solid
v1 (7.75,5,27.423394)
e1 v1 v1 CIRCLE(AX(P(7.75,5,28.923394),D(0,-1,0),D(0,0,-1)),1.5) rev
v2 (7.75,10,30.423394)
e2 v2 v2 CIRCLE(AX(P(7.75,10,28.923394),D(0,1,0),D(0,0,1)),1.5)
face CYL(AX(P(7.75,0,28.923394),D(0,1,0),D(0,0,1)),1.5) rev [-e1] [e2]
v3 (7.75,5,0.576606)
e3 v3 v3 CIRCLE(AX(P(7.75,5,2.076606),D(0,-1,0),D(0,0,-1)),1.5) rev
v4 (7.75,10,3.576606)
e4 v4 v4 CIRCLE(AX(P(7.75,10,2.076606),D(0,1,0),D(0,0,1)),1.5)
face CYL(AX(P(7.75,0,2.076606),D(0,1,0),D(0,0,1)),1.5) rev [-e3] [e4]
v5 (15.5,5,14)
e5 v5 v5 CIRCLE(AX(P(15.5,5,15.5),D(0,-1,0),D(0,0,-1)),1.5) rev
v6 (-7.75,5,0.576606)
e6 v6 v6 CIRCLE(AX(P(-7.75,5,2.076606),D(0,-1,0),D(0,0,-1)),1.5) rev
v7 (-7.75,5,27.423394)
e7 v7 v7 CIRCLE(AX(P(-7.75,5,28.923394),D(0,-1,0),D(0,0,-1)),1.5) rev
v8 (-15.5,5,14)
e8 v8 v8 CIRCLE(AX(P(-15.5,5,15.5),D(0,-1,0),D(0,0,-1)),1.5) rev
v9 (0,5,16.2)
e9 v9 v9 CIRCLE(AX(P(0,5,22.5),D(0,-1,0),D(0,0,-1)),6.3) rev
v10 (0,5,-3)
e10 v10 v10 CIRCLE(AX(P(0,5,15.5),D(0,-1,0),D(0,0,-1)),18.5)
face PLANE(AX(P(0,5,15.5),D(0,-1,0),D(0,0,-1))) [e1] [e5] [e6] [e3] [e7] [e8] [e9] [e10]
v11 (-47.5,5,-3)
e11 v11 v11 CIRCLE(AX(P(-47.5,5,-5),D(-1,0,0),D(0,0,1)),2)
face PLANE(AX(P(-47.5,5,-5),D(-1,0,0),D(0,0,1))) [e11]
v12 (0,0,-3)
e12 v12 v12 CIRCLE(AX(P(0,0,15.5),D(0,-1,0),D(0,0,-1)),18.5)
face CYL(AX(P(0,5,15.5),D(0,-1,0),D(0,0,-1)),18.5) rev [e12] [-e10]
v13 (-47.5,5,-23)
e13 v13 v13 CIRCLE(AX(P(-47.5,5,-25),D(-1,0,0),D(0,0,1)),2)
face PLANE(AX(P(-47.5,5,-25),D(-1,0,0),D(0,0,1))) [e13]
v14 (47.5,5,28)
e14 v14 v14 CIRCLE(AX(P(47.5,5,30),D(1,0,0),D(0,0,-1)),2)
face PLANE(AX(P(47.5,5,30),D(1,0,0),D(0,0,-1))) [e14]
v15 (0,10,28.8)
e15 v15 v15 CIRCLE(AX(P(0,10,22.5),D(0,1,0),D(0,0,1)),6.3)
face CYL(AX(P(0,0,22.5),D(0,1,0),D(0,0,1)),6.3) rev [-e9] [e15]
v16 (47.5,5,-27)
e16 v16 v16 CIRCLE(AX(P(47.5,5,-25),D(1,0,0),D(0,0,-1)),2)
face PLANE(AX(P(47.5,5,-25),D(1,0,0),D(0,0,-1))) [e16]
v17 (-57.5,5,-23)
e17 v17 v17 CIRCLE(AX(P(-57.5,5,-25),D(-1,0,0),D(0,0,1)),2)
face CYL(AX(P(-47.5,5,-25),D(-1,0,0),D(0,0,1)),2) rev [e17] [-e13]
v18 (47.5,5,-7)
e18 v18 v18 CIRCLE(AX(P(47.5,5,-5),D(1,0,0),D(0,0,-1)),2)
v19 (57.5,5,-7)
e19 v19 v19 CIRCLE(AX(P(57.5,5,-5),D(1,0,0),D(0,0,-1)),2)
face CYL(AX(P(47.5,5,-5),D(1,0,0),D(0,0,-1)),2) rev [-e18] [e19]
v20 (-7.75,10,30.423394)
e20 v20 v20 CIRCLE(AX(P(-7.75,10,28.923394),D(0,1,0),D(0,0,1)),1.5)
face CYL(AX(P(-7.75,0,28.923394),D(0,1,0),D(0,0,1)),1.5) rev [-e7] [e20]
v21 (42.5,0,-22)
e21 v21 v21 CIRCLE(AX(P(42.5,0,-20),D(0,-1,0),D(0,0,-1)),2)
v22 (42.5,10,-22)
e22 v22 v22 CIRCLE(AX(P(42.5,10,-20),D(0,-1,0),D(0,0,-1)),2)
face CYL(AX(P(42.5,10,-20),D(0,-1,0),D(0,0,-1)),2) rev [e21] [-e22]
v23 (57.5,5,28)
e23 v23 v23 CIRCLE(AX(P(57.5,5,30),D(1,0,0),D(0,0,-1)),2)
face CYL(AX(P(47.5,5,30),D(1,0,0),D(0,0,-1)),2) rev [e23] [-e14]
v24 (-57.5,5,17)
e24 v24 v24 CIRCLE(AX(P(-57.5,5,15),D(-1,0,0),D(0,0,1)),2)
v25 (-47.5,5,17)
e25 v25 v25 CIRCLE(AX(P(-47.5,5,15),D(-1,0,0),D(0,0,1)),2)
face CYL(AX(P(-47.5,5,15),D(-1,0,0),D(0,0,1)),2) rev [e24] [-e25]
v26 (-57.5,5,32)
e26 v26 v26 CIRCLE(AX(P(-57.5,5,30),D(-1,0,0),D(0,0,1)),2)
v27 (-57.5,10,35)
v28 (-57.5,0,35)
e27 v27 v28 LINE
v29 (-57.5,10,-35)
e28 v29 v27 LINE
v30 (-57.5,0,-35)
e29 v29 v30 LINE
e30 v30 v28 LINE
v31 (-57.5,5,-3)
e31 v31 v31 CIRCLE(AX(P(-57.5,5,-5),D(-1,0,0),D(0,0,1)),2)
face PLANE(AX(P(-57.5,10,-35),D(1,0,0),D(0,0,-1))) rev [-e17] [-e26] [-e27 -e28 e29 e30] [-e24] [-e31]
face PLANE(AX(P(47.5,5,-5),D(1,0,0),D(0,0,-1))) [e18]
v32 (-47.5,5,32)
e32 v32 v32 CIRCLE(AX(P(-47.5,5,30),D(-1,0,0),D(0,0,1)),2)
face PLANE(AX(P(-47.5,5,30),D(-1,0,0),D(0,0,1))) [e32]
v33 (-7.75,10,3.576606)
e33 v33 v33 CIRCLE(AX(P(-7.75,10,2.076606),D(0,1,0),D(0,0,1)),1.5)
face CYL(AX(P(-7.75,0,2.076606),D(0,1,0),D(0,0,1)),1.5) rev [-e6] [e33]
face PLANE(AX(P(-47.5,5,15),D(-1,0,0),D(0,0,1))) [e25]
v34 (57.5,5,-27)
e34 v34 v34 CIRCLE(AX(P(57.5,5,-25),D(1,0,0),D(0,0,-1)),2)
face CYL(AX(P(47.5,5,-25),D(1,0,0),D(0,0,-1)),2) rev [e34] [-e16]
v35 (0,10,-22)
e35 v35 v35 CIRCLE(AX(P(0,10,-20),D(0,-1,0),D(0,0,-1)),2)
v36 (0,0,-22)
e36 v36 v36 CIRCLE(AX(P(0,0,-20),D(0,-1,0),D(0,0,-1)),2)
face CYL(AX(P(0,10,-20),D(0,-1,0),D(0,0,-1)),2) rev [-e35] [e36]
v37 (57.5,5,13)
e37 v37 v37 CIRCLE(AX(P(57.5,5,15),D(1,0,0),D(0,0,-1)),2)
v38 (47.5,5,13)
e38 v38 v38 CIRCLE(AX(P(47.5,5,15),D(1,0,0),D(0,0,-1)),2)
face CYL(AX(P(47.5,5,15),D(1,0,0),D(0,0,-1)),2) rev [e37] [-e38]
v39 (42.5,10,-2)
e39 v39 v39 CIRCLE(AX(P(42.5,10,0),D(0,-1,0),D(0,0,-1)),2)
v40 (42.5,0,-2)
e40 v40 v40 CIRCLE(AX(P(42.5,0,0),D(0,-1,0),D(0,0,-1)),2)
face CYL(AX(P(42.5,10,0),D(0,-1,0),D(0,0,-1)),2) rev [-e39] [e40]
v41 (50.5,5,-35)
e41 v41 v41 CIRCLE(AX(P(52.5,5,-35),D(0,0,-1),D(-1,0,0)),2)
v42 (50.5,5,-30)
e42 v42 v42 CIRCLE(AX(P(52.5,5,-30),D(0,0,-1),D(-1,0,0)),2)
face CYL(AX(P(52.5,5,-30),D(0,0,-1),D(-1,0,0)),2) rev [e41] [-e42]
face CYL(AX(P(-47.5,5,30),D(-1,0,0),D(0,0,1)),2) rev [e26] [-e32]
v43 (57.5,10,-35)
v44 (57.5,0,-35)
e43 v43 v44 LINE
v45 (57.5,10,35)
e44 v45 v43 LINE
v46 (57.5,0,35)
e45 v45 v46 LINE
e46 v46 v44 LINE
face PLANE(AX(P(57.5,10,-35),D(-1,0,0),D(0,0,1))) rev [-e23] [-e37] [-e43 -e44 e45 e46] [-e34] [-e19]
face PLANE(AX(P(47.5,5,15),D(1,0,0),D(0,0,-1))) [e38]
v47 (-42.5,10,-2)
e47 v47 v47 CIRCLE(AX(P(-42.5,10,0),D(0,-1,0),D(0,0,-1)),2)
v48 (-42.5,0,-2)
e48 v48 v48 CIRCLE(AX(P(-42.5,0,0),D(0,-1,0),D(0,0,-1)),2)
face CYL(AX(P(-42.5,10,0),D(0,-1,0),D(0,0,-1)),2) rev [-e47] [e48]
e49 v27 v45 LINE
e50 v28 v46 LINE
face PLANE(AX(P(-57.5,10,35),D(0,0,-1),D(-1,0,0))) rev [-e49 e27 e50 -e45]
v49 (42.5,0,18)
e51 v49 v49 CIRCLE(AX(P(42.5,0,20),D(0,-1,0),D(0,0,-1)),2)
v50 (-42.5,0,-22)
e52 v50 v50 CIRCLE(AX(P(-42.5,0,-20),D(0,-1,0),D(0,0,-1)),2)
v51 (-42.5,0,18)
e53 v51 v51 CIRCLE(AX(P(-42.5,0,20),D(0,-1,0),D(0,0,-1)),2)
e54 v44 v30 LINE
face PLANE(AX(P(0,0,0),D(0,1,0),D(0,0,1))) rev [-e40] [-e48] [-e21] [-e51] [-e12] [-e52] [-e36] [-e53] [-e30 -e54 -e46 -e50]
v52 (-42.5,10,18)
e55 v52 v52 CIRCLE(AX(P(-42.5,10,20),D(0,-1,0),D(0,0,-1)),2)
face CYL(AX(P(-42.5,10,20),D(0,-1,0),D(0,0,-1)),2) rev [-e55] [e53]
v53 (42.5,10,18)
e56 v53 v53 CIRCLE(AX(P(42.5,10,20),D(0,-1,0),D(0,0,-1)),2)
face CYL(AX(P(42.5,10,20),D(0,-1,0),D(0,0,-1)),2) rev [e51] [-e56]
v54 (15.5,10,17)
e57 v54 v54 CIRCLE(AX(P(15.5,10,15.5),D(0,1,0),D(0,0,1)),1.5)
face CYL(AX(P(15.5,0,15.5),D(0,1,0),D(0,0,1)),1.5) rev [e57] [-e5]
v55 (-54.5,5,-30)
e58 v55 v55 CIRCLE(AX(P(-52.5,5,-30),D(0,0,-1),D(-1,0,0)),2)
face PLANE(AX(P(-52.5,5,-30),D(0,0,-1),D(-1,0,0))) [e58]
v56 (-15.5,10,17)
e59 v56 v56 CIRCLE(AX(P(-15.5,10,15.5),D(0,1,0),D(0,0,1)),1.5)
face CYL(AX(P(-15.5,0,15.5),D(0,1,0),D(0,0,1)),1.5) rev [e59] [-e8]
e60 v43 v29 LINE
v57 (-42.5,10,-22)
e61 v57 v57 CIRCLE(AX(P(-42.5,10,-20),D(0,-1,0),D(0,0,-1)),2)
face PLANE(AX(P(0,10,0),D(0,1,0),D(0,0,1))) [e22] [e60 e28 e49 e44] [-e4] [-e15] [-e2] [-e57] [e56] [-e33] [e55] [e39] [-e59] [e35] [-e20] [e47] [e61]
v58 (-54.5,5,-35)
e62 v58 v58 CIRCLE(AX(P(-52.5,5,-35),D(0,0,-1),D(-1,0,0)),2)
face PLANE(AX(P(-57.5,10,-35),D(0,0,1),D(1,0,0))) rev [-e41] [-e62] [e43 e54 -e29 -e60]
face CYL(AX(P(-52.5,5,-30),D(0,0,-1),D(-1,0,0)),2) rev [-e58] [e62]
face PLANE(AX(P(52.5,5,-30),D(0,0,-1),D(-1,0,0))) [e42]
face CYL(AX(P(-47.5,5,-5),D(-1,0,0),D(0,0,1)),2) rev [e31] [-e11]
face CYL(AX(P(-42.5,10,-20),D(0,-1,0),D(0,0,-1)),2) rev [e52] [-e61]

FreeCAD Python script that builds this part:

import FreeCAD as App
import Part
import Sketcher


def add_polygon(sketch, points):
    """Adds a closed chain of lines whose ends are joined by coincident constraints."""
    first, n = sketch.GeometryCount, len(points)
    for a, b in zip(points, points[1:] + points[:1]):
        sketch.addGeometry(Part.LineSegment(App.Vector(*a, 0), App.Vector(*b, 0)), False)
    for i in range(n):
        sketch.addConstraint(Sketcher.Constraint("Coincident", first + i, 2, first + (i + 1) % n, 1))

doc = App.newDocument("Part")
body = doc.addObject("PartDesign::Body", "Body")

# Sketch on XZ plane
sketch1 = body.newObject("Sketcher::SketchObject", "Sketch")
sketch1.AttachmentSupport = (doc.getObject("XZ_Plane"), [""])
sketch1.MapMode = "FlatFace"
add_polygon(sketch1, [(-57.5, -35), (-57.5, 35), (57.5, 35), (57.5, -35)])  # lines 0-3
sketch1.addConstraint(Sketcher.Constraint("Vertical", 0))
sketch1.addConstraint(Sketcher.Constraint("Horizontal", 1))
sketch1.addConstraint(Sketcher.Constraint("Vertical", 2))
sketch1.addConstraint(Sketcher.Constraint("Horizontal", 3))
sketch1.addConstraint(Sketcher.Constraint("Symmetric", 0, 2, 2, 2, -1, 1))
sketch1.addConstraint(Sketcher.Constraint("DistanceX", 1, 1, 1, 2, 115.0))
sketch1.addConstraint(Sketcher.Constraint("DistanceY", 0, 1, 0, 2, 70.0))
pad1 = body.newObject("PartDesign::Pad", "Pad")
pad1.Profile = sketch1
pad1.Length = 10
pad1.Reversed = True

# Sketch on XZ plane
sketch2 = body.newObject("Sketcher::SketchObject", "Sketch001")
sketch2.AttachmentSupport = (doc.getObject("XZ_Plane"), [""])
sketch2.MapMode = "FlatFace"
sketch2.AttachmentOffset = App.Placement(App.Vector(0, 0, -10), App.Rotation())
sketch2.addGeometry(Part.Circle(App.Vector(0, 22.5, 0), App.Vector(0, 0, 1), 6.3), False)
sketch2.addGeometry(Part.Circle(App.Vector(15.5, 15.5, 0), App.Vector(0, 0, 1), 1.5), False)
sketch2.addGeometry(Part.Circle(App.Vector(7.75, 28.923394, 0), App.Vector(0, 0, 1), 1.5), False)
sketch2.addGeometry(Part.Circle(App.Vector(-7.75, 28.923394, 0), App.Vector(0, 0, 1), 1.5), False)
sketch2.addGeometry(Part.Circle(App.Vector(-15.5, 15.5, 0), App.Vector(0, 0, 1), 1.5), False)
sketch2.addGeometry(Part.Circle(App.Vector(-7.75, 2.076606, 0), App.Vector(0, 0, 1), 1.5), False)
sketch2.addGeometry(Part.Circle(App.Vector(7.75, 2.076606, 0), App.Vector(0, 0, 1), 1.5), False)
sketch2.addConstraint(Sketcher.Constraint("Equal", 1, 2))
sketch2.addConstraint(Sketcher.Constraint("Equal", 2, 3))
sketch2.addConstraint(Sketcher.Constraint("Equal", 3, 4))
sketch2.addConstraint(Sketcher.Constraint("Equal", 4, 5))
sketch2.addConstraint(Sketcher.Constraint("Equal", 5, 6))
sketch2.addConstraint(Sketcher.Constraint("Symmetric", 2, 3, 3, 3, -2))
sketch2.addConstraint(Sketcher.Constraint("Symmetric", 1, 3, 4, 3, -2))
sketch2.addConstraint(Sketcher.Constraint("Symmetric", 5, 3, 6, 3, -2))
sketch2.addConstraint(Sketcher.Constraint("PointOnObject", 0, 3, -2))
sketch2.addConstraint(Sketcher.Constraint("Vertical", 3, 3, 5, 3))
sketch2.addConstraint(Sketcher.Constraint("Diameter", 1, 3.0))
sketch2.addConstraint(Sketcher.Constraint("Diameter", 0, 12.6))
sketch2.addConstraint(Sketcher.Constraint("DistanceY", 1, 3, 0, 3, 7.0))
sketch2.addConstraint(Sketcher.Constraint("DistanceX", 4, 3, 1, 3, 31.0))
sketch2.addConstraint(Sketcher.Constraint("DistanceY", -1, 1, 0, 3, 22.5))
sketch2.addConstraint(Sketcher.Constraint("DistanceX", 3, 3, 2, 3, 15.5))
sketch2.addConstraint(Sketcher.Constraint("DistanceY", -1, 1, 2, 3, 28.923394))
sketch2.addConstraint(Sketcher.Constraint("DistanceY", -1, 1, 5, 3, 2.076606))
pocket1 = body.newObject("PartDesign::Pocket", "Pocket")
pocket1.Profile = sketch2
pocket1.Length = 10
pocket1.Reversed = True

# Sketch on XZ plane
sketch3 = body.newObject("Sketcher::SketchObject", "Sketch002")
sketch3.AttachmentSupport = (doc.getObject("XZ_Plane"), [""])
sketch3.MapMode = "FlatFace"
sketch3.addGeometry(Part.Circle(App.Vector(0, 15.5, 0), App.Vector(0, 0, 1), 18.5), False)
sketch3.addConstraint(Sketcher.Constraint("PointOnObject", 0, 3, -2))
sketch3.addConstraint(Sketcher.Constraint("Diameter", 0, 37.0))
sketch3.addConstraint(Sketcher.Constraint("DistanceY", -1, 1, 0, 3, 15.5))
pocket2 = body.newObject("PartDesign::Pocket", "Pocket001")
pocket2.Profile = sketch3
pocket2.Length = 5

# Sketch on YZ plane
sketch4 = body.newObject("Sketcher::SketchObject", "Sketch003")
sketch4.AttachmentSupport = (doc.getObject("YZ_Plane"), [""])
sketch4.MapMode = "FlatFace"
sketch4.AttachmentOffset = App.Placement(App.Vector(0, 0, -57.5), App.Rotation())
sketch4.addGeometry(Part.Circle(App.Vector(5, 30, 0), App.Vector(0, 0, 1), 2), False)
sketch4.addGeometry(Part.Circle(App.Vector(5, 15, 0), App.Vector(0, 0, 1), 2), False)
sketch4.addGeometry(Part.Circle(App.Vector(5, -5, 0), App.Vector(0, 0, 1), 2), False)
sketch4.addGeometry(Part.Circle(App.Vector(5, -25, 0), App.Vector(0, 0, 1), 2), False)
sketch4.addConstraint(Sketcher.Constraint("Equal", 0, 1))
sketch4.addConstraint(Sketcher.Constraint("Equal", 1, 2))
sketch4.addConstraint(Sketcher.Constraint("Equal", 2, 3))
sketch4.addConstraint(Sketcher.Constraint("Vertical", 0, 3, 1, 3))
sketch4.addConstraint(Sketcher.Constraint("Vertical", 1, 3, 2, 3))
sketch4.addConstraint(Sketcher.Constraint("Vertical", 2, 3, 3, 3))
sketch4.addConstraint(Sketcher.Constraint("Diameter", 0, 4.0))
sketch4.addConstraint(Sketcher.Constraint("DistanceX", -1, 1, 0, 3, 5.0))
sketch4.addConstraint(Sketcher.Constraint("DistanceY", -1, 1, 0, 3, 30.0))
sketch4.addConstraint(Sketcher.Constraint("DistanceY", -1, 1, 1, 3, 15.0))
sketch4.addConstraint(Sketcher.Constraint("DistanceY", 2, 3, -1, 1, 5.0))
sketch4.addConstraint(Sketcher.Constraint("DistanceY", 3, 3, -1, 1, 25.0))
pocket3 = body.newObject("PartDesign::Pocket", "Pocket002")
pocket3.Profile = sketch4
pocket3.Length = 10
pocket3.Reversed = True

# Sketch on YZ plane
sketch5 = body.newObject("Sketcher::SketchObject", "Sketch004")
sketch5.AttachmentSupport = (doc.getObject("YZ_Plane"), [""])
sketch5.MapMode = "FlatFace"
sketch5.AttachmentOffset = App.Placement(App.Vector(0, 0, 47.5), App.Rotation())
sketch5.addGeometry(Part.Circle(App.Vector(5, 30, 0), App.Vector(0, 0, 1), 2), False)
sketch5.addGeometry(Part.Circle(App.Vector(5, 15, 0), App.Vector(0, 0, 1), 2), False)
sketch5.addGeometry(Part.Circle(App.Vector(5, -5, 0), App.Vector(0, 0, 1), 2), False)
sketch5.addGeometry(Part.Circle(App.Vector(5, -25, 0), App.Vector(0, 0, 1), 2), False)
sketch5.addConstraint(Sketcher.Constraint("Equal", 0, 1))
sketch5.addConstraint(Sketcher.Constraint("Equal", 1, 2))
sketch5.addConstraint(Sketcher.Constraint("Equal", 2, 3))
sketch5.addConstraint(Sketcher.Constraint("Vertical", 0, 3, 1, 3))
sketch5.addConstraint(Sketcher.Constraint("Vertical", 1, 3, 2, 3))
sketch5.addConstraint(Sketcher.Constraint("Vertical", 2, 3, 3, 3))
sketch5.addConstraint(Sketcher.Constraint("Diameter", 0, 4.0))
sketch5.addConstraint(Sketcher.Constraint("DistanceX", -1, 1, 0, 3, 5.0))
sketch5.addConstraint(Sketcher.Constraint("DistanceY", -1, 1, 0, 3, 30.0))
sketch5.addConstraint(Sketcher.Constraint("DistanceY", -1, 1, 1, 3, 15.0))
sketch5.addConstraint(Sketcher.Constraint("DistanceY", 2, 3, -1, 1, 5.0))
sketch5.addConstraint(Sketcher.Constraint("DistanceY", 3, 3, -1, 1, 25.0))
pocket4 = body.newObject("PartDesign::Pocket", "Pocket003")
pocket4.Profile = sketch5
pocket4.Length = 10
pocket4.Reversed = True

# Sketch on XY plane
sketch6 = body.newObject("Sketcher::SketchObject", "Sketch005")
sketch6.AttachmentSupport = (doc.getObject("XY_Plane"), [""])
sketch6.MapMode = "FlatFace"
sketch6.AttachmentOffset = App.Placement(App.Vector(0, 0, -35), App.Rotation())
sketch6.addGeometry(Part.Circle(App.Vector(52.5, 5, 0), App.Vector(0, 0, 1), 2), False)
sketch6.addGeometry(Part.Circle(App.Vector(-52.5, 5, 0), App.Vector(0, 0, 1), 2), False)
sketch6.addConstraint(Sketcher.Constraint("Equal", 0, 1))
sketch6.addConstraint(Sketcher.Constraint("Symmetric", 0, 3, 1, 3, -2))
sketch6.addConstraint(Sketcher.Constraint("Diameter", 0, 4.0))
sketch6.addConstraint(Sketcher.Constraint("DistanceY", -1, 1, 0, 3, 5.0))
sketch6.addConstraint(Sketcher.Constraint("DistanceX", 1, 3, 0, 3, 105.0))
pocket5 = body.newObject("PartDesign::Pocket", "Pocket004")
pocket5.Profile = sketch6
pocket5.Length = 5
pocket5.Reversed = True

# Sketch on XZ plane
sketch7 = body.newObject("Sketcher::SketchObject", "Sketch006")
sketch7.AttachmentSupport = (doc.getObject("XZ_Plane"), [""])
sketch7.MapMode = "FlatFace"
sketch7.addGeometry(Part.Circle(App.Vector(42.5, 20, 0), App.Vector(0, 0, 1), 2), False)
sketch7.addGeometry(Part.Circle(App.Vector(42.5, 0, 0), App.Vector(0, 0, 1), 2), False)
sketch7.addGeometry(Part.Circle(App.Vector(42.5, -20, 0), App.Vector(0, 0, 1), 2), False)
sketch7.addGeometry(Part.Circle(App.Vector(-42.5, -20, 0), App.Vector(0, 0, 1), 2), False)
sketch7.addGeometry(Part.Circle(App.Vector(-42.5, 0, 0), App.Vector(0, 0, 1), 2), False)
sketch7.addGeometry(Part.Circle(App.Vector(-42.5, 20, 0), App.Vector(0, 0, 1), 2), False)
sketch7.addGeometry(Part.Circle(App.Vector(0, -20, 0), App.Vector(0, 0, 1), 2), False)
sketch7.addConstraint(Sketcher.Constraint("Equal", 0, 1))
sketch7.addConstraint(Sketcher.Constraint("Equal", 1, 2))
sketch7.addConstraint(Sketcher.Constraint("Equal", 2, 3))
sketch7.addConstraint(Sketcher.Constraint("Equal", 3, 4))
sketch7.addConstraint(Sketcher.Constraint("Equal", 4, 5))
sketch7.addConstraint(Sketcher.Constraint("Equal", 5, 6))
sketch7.addConstraint(Sketcher.Constraint("Symmetric", 0, 3, 3, 3, -1, 1))
sketch7.addConstraint(Sketcher.Constraint("Symmetric", 1, 3, 4, 3, -1, 1))
sketch7.addConstraint(Sketcher.Constraint("Symmetric", 2, 3, 5, 3, -1, 1))
sketch7.addConstraint(Sketcher.Constraint("Symmetric", 2, 3, 3, 3, -2))
sketch7.addConstraint(Sketcher.Constraint("PointOnObject", 1, 3, -1))
sketch7.addConstraint(Sketcher.Constraint("PointOnObject", 6, 3, -2))
sketch7.addConstraint(Sketcher.Constraint("Horizontal", 3, 3, 6, 3))
sketch7.addConstraint(Sketcher.Constraint("Vertical", 0, 3, 1, 3))
sketch7.addConstraint(Sketcher.Constraint("Diameter", 0, 4.0))
sketch7.addConstraint(Sketcher.Constraint("DistanceY", -1, 1, 0, 3, 20.0))
sketch7.addConstraint(Sketcher.Constraint("DistanceX", 3, 3, 2, 3, 85.0))
pocket6 = body.newObject("PartDesign::Pocket", "Pocket005")
pocket6.Profile = sketch7
pocket6.Length = 10

doc.recompute()
